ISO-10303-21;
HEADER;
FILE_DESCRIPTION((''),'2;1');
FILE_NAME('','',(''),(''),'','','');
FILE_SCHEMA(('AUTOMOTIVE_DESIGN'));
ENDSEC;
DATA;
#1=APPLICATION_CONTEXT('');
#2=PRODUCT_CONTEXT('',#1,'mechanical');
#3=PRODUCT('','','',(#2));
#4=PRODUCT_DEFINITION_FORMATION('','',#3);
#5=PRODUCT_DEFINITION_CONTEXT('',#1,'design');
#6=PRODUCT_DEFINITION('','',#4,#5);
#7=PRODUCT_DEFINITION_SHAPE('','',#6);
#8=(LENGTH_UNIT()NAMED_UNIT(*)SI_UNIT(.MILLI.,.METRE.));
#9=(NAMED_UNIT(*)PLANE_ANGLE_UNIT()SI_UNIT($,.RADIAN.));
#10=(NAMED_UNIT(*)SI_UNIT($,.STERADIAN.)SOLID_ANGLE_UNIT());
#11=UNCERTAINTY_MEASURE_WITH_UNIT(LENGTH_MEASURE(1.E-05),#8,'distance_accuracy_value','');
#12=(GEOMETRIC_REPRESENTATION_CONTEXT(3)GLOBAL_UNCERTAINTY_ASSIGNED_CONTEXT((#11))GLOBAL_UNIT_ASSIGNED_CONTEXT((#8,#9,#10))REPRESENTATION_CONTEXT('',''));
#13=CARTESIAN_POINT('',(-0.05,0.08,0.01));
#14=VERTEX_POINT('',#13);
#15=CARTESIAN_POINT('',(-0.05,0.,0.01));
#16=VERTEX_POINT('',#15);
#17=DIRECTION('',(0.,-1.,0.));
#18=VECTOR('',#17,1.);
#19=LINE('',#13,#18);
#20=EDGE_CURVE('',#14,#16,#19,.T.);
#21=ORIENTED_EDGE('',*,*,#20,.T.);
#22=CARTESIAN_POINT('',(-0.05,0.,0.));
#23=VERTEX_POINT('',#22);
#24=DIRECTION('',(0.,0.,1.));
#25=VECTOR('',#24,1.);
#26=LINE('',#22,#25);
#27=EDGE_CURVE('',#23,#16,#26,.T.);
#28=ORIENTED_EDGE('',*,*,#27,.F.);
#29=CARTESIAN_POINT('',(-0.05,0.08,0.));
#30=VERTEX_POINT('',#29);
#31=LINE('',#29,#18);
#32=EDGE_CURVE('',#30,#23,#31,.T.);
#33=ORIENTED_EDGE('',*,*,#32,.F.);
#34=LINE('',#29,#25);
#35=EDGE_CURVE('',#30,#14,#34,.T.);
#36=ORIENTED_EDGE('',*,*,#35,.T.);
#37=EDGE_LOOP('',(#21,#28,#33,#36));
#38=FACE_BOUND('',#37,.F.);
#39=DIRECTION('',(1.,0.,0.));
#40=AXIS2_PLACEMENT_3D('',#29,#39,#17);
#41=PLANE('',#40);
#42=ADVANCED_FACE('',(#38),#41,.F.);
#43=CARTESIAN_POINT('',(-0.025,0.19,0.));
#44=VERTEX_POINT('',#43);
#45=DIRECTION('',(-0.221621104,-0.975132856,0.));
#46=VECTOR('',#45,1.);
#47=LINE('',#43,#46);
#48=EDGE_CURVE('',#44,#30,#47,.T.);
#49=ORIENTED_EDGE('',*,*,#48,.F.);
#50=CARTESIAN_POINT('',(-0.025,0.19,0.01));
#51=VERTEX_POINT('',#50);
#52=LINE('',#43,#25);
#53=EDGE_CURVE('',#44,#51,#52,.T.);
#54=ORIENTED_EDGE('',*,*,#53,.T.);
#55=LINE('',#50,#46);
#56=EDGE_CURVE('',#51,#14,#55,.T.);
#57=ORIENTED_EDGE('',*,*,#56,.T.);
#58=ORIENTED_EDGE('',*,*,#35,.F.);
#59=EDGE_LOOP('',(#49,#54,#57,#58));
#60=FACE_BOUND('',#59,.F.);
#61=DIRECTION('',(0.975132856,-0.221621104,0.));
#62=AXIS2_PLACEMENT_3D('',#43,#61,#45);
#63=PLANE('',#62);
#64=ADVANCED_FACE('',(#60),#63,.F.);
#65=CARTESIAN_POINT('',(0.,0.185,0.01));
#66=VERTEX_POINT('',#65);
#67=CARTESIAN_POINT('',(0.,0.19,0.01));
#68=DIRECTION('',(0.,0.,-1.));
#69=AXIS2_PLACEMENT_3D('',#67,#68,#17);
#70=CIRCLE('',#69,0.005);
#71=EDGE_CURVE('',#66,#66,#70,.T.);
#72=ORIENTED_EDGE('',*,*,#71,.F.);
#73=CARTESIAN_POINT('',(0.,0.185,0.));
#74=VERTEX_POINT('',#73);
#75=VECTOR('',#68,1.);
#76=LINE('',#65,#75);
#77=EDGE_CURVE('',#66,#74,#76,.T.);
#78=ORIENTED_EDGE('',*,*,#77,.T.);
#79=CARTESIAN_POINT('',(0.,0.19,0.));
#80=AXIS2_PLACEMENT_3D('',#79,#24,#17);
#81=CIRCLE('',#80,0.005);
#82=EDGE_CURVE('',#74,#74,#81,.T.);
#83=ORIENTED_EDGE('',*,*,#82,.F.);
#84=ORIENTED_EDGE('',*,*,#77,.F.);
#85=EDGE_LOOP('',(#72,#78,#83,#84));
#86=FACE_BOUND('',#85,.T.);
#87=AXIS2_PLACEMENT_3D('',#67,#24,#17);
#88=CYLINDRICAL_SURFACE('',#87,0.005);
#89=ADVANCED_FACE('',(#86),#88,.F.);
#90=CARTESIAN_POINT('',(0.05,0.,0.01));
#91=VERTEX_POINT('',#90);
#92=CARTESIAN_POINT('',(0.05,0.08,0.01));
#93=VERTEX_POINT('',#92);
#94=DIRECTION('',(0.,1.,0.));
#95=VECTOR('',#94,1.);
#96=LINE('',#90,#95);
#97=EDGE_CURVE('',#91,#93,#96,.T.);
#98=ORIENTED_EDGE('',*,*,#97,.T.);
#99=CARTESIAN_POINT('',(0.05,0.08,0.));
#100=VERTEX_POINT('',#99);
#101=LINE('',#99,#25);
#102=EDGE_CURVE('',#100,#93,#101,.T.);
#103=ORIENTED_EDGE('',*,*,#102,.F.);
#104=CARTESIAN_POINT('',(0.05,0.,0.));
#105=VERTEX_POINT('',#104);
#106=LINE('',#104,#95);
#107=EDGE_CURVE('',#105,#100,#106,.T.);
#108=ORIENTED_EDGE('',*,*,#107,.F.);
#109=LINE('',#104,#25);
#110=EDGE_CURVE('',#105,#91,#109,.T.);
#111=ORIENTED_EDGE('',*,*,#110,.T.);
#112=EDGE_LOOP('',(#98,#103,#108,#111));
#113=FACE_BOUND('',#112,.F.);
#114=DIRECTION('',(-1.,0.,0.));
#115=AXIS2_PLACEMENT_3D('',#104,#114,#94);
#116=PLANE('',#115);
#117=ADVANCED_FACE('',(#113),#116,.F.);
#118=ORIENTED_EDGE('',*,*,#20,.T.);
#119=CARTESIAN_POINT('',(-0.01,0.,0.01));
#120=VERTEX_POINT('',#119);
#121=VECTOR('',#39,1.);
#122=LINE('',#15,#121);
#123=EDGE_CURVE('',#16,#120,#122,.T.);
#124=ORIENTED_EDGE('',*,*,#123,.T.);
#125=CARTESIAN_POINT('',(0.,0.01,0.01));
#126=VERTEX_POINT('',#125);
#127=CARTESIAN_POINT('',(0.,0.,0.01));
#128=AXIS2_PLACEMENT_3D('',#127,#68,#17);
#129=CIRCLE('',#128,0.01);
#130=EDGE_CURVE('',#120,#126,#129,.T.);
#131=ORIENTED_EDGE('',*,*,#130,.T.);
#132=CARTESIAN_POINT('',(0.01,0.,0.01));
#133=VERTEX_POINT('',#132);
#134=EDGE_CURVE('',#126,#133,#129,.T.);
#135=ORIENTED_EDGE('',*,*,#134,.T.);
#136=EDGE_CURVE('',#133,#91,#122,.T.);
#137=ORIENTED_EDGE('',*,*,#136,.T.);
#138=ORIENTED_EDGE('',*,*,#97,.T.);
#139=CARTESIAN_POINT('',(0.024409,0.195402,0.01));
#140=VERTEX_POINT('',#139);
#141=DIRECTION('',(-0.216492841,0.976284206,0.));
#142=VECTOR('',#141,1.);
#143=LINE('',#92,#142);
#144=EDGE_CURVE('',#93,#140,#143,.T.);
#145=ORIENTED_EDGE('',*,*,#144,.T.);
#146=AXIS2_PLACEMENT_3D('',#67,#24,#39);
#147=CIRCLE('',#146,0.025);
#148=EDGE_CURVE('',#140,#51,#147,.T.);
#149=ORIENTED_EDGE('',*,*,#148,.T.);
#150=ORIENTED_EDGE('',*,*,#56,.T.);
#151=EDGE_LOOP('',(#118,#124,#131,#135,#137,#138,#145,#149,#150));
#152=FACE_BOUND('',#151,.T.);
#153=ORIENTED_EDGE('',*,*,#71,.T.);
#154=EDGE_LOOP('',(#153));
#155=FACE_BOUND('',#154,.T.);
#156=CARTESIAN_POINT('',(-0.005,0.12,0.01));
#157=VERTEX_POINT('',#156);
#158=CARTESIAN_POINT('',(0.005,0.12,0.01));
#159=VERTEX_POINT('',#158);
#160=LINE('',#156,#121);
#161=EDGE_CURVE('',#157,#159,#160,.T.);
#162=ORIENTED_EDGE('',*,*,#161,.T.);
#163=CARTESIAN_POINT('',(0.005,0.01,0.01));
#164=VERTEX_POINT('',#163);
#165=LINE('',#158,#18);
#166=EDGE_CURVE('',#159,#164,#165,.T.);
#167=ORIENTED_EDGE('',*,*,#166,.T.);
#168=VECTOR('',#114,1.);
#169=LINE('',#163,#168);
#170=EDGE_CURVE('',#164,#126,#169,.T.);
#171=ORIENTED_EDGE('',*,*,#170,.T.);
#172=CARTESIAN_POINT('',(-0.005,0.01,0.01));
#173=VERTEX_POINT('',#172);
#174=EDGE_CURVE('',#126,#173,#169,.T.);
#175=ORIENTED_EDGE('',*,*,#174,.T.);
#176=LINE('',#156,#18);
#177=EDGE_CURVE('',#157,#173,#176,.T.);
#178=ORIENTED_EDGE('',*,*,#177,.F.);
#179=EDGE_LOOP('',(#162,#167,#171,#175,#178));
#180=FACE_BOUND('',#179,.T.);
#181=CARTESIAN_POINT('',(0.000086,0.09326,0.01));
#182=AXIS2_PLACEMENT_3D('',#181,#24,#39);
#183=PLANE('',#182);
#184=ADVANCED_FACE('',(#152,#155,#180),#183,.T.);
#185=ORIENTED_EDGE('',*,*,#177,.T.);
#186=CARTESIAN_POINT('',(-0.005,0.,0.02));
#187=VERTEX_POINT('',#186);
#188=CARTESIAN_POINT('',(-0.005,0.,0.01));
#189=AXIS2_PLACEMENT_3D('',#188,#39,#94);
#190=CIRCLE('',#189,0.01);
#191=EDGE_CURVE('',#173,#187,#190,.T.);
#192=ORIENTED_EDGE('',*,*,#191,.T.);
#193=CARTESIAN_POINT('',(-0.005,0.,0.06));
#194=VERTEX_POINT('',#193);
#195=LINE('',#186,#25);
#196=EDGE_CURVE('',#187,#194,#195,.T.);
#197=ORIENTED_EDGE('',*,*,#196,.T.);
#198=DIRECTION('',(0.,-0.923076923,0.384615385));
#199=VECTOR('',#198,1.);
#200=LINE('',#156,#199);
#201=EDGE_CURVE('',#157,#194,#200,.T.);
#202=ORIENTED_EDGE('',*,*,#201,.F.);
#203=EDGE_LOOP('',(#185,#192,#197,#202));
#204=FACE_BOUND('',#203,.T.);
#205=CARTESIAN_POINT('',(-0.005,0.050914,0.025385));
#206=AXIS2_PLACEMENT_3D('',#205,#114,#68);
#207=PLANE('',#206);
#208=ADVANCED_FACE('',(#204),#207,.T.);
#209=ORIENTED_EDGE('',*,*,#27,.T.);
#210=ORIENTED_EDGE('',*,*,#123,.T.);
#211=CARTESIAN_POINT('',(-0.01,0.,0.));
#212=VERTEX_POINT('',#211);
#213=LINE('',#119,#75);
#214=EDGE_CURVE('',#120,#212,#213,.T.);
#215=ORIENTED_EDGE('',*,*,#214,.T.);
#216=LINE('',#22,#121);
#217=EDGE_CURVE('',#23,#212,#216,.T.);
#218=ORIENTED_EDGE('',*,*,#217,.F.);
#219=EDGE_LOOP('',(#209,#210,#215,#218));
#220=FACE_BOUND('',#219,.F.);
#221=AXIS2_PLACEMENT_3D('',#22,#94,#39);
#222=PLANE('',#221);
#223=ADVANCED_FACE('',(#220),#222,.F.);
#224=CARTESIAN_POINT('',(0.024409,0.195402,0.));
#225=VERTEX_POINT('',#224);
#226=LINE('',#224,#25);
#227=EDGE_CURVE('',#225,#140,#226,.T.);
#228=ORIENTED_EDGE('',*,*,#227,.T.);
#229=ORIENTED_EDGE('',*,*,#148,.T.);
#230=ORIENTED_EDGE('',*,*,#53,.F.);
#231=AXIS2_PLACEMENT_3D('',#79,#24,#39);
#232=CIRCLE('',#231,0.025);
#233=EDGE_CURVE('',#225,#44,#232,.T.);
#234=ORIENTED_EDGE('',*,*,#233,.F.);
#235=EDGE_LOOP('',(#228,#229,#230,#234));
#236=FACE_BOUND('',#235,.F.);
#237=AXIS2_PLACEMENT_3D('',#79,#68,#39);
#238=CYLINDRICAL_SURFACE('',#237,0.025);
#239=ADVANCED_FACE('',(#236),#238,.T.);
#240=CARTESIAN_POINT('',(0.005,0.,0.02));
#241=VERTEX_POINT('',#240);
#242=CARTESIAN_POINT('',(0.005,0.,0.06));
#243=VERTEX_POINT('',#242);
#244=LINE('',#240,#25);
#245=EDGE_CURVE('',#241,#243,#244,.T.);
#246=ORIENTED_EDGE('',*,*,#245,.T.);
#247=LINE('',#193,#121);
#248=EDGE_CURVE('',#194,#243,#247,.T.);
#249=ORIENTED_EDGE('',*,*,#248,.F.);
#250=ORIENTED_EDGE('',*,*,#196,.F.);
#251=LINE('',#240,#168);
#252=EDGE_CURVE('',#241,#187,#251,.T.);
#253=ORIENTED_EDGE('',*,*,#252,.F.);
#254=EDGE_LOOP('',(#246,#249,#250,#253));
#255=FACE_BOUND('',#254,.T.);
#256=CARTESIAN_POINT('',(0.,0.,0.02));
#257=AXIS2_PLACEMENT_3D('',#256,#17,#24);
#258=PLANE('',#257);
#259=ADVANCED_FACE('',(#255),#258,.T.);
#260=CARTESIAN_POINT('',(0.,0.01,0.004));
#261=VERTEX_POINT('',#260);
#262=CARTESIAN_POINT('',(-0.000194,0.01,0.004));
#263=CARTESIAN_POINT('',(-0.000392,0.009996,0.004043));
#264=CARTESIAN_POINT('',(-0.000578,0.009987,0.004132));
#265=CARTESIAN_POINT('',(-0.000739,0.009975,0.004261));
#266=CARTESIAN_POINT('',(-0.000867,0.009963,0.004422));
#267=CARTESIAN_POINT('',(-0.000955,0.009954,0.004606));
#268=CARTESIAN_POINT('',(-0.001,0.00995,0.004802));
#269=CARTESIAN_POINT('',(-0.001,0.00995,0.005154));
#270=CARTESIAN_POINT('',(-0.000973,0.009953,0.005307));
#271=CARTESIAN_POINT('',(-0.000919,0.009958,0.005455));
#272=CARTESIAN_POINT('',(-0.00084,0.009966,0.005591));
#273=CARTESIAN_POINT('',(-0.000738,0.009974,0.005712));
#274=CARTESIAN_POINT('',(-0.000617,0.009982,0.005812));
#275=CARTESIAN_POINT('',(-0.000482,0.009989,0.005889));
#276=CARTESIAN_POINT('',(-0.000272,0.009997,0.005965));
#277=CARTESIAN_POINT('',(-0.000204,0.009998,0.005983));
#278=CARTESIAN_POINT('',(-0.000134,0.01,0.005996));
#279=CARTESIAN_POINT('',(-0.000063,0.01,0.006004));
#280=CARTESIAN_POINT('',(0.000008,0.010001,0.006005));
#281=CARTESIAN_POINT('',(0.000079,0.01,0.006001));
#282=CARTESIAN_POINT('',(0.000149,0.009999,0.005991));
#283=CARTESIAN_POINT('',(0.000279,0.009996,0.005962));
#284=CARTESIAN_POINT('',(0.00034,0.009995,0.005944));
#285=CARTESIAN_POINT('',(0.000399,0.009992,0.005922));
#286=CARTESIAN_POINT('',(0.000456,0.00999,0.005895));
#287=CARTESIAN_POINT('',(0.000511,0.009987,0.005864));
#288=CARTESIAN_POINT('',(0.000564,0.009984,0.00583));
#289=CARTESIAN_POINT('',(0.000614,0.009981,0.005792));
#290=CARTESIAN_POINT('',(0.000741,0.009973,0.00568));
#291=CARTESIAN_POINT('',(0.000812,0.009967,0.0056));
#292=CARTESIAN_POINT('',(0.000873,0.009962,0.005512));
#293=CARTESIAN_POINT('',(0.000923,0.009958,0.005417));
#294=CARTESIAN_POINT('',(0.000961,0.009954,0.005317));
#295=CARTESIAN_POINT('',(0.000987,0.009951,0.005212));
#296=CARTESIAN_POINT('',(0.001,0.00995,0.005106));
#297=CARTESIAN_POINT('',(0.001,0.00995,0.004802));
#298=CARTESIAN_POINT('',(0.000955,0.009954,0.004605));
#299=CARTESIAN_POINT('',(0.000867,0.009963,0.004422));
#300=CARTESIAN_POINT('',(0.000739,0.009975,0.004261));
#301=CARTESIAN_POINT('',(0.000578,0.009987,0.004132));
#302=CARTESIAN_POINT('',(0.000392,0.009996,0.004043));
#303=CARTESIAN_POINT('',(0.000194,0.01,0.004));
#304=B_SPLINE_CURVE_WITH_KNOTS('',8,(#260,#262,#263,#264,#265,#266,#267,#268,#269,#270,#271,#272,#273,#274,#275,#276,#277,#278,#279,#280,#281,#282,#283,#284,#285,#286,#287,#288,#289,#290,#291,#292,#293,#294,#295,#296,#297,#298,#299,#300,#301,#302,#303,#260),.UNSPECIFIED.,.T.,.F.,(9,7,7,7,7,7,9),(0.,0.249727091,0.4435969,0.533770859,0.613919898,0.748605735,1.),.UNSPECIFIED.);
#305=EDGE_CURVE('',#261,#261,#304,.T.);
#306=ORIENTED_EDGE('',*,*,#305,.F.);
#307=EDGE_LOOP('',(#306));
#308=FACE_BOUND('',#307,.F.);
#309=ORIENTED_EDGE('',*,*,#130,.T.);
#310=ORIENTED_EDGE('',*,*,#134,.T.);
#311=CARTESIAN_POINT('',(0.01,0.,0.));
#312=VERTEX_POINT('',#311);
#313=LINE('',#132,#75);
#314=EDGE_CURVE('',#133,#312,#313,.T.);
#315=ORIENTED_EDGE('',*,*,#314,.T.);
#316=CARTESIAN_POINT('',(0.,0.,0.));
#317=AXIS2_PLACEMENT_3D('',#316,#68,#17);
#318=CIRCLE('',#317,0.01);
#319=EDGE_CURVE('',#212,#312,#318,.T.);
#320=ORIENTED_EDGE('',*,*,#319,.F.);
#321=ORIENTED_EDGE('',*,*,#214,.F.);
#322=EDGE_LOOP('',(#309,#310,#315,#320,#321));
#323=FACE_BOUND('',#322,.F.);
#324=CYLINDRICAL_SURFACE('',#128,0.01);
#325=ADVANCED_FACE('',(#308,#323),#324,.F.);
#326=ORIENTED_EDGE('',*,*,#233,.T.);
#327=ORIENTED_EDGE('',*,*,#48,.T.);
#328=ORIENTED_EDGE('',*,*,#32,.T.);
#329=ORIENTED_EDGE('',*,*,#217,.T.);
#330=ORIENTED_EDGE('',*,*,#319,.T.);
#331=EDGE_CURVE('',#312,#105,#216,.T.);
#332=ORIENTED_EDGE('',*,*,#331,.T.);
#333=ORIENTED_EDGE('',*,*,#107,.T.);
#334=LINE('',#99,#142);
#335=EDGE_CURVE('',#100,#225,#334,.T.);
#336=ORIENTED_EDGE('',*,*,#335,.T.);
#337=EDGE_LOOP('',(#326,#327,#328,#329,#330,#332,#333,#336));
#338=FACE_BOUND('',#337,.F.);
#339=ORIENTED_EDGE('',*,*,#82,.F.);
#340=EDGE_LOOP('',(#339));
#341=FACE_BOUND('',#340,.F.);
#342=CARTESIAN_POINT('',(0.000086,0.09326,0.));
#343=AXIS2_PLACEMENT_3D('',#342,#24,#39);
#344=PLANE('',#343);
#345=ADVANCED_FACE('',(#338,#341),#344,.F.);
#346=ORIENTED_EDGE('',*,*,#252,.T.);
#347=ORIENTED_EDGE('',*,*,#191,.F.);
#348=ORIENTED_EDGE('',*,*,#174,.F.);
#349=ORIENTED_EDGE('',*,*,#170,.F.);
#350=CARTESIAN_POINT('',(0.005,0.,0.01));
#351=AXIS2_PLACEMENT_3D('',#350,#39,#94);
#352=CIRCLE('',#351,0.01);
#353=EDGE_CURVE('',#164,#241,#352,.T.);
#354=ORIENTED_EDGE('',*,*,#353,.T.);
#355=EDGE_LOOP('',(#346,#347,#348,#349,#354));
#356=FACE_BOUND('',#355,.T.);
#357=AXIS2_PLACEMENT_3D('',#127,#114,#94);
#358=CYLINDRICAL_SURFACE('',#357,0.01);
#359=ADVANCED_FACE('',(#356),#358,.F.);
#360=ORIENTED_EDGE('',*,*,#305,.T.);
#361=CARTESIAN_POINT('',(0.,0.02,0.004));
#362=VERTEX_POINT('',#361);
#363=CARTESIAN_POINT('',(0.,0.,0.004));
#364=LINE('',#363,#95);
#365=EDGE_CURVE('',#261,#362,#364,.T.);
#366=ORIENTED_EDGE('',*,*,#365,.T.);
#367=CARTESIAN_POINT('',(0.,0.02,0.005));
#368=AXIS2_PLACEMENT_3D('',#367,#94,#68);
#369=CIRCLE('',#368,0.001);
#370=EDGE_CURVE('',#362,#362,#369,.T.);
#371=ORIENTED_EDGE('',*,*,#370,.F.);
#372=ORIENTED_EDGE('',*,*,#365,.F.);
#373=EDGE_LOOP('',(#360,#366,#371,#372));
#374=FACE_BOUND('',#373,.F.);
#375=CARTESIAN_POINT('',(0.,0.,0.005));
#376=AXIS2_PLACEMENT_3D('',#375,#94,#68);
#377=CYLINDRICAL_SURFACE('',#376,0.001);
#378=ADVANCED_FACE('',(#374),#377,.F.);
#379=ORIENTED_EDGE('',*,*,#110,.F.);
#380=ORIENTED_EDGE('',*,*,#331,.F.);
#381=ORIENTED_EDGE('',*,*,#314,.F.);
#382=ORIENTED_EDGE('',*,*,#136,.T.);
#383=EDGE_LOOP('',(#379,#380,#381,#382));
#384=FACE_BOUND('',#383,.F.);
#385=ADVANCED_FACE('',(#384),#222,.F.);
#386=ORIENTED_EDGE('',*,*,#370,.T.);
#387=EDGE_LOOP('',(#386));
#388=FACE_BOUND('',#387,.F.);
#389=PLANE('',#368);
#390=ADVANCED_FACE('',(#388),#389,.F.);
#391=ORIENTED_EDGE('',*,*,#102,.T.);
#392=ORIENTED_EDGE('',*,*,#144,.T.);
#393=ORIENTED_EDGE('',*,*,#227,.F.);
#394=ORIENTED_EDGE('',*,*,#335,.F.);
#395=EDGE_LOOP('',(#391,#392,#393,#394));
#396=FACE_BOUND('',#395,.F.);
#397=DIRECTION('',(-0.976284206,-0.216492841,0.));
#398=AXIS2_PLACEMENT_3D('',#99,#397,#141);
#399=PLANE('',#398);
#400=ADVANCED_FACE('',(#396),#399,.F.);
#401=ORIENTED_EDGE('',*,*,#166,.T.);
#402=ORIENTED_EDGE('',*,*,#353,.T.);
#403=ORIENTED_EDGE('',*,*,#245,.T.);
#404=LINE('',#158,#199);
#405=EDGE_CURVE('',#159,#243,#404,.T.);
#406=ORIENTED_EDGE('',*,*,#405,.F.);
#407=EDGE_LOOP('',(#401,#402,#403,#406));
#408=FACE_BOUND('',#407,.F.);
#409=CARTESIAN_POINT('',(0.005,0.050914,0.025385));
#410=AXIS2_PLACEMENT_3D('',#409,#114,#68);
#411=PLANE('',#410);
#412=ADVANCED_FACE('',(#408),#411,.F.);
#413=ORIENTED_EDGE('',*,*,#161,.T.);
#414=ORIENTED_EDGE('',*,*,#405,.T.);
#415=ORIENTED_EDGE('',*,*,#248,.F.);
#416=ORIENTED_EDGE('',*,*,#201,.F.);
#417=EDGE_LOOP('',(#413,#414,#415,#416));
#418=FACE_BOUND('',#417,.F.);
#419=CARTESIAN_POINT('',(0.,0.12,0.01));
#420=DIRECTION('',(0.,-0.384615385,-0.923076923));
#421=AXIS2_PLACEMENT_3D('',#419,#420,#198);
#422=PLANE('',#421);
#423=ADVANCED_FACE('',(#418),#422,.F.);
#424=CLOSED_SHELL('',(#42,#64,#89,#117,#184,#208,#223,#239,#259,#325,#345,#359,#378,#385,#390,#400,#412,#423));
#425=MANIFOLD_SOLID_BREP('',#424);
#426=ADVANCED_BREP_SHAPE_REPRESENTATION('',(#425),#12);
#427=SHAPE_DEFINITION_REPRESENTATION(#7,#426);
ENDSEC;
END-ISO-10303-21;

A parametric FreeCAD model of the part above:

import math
import FreeCAD as App
import Part
import Sketcher

doc = App.newDocument("Part")
body = doc.addObject("PartDesign::Body", "Body")

sketch1 = doc.addObject("Sketcher::SketchObject", "Sketch")
body.addObject(sketch1)
sketch1.AttachmentSupport = (doc.XY_Plane, [""])
sketch1.MapMode = "FlatFace"
sketch1.addGeometry(Part.LineSegment(App.Vector(-0.05, 0.08, 0), App.Vector(-0.05, 0, 0)), False)
sketch1.addGeometry(Part.LineSegment(App.Vector(-0.05, 0, 0), App.Vector(0.05, 0, 0)), False)
sketch1.addGeometry(Part.LineSegment(App.Vector(0.05, 0, 0), App.Vector(0.05, 0.08, 0)), False)
sketch1.addGeometry(Part.LineSegment(App.Vector(0.05, 0.08, 0), App.Vector(0.024, 0.195, 0)), False)
sketch1.addGeometry(Part.ArcOfCircle(Part.Circle(App.Vector(0, 0.19, 0), App.Vector(0, 0, 1), 0.025), math.radians(12), math.radians(180)), False)
sketch1.addGeometry(Part.LineSegment(App.Vector(-0.025, 0.19, 0), App.Vector(-0.05, 0.08, 0)), False)
sketch1.addConstraint(Sketcher.Constraint("Coincident", 0, 2, 1, 1))
sketch1.addConstraint(Sketcher.Constraint("Coincident", 1, 2, 2, 1))
sketch1.addConstraint(Sketcher.Constraint("Coincident", 2, 2, 3, 1))
sketch1.addConstraint(Sketcher.Constraint("Coincident", 3, 2, 4, 1))
sketch1.addConstraint(Sketcher.Constraint("Coincident", 4, 2, 5, 1))
sketch1.addConstraint(Sketcher.Constraint("Coincident", 5, 2, 0, 1))
sketch1.addConstraint(Sketcher.Constraint("Vertical", 0))
sketch1.addConstraint(Sketcher.Constraint("Horizontal", 1))
sketch1.addConstraint(Sketcher.Constraint("Vertical", 2))
sketch1.addConstraint(Sketcher.Constraint("Symmetric", 0, 2, 1, 2, -1, 1))
sketch1.addConstraint(Sketcher.Constraint("PointOnObject", 4, 3, -2))
sketch1.addConstraint(Sketcher.Constraint("Horizontal", 2, 2, 5, 2))
sketch1.addConstraint(Sketcher.Constraint("Radius", 4, 0.025))
sketch1.addConstraint(Sketcher.Constraint("DistanceX", 0, 2, -1, 1, 0.05))
sketch1.addConstraint(Sketcher.Constraint("DistanceY", 0, 2, 0, 1, 0.08))
sketch1.addConstraint(Sketcher.Constraint("DistanceY", -1, 1, 4, 3, 0.19))
sketch1.addConstraint(Sketcher.Constraint("DistanceY", -1, 1, 4, 2, 0.19))
sketch1.addConstraint(Sketcher.Constraint("Distance", 3, 0.1182))
pad1 = doc.addObject("PartDesign::Pad", "Pad")
body.addObject(pad1)
pad1.Profile = sketch1
pad1.Length = 0.01

sketch2 = doc.addObject("Sketcher::SketchObject", "Sketch001")
body.addObject(sketch2)
sketch2.AttachmentSupport = (doc.XZ_Plane, [""])
sketch2.MapMode = "FlatFace"
sketch2.addGeometry(Part.Circle(App.Vector(0, 0.005, 0), App.Vector(0, 0, 1), 0.001), False)
sketch2.addConstraint(Sketcher.Constraint("PointOnObject", 0, 3, -2))
sketch2.addConstraint(Sketcher.Constraint("Diameter", 0, 0.002))
sketch2.addConstraint(Sketcher.Constraint("DistanceY", -1, 1, 0, 3, 0.005))
doc.recompute()
hole = doc.addObject("PartDesign::Hole", "Hole")
body.addObject(hole)
hole.Profile = sketch2
hole.ThreadType = "None"
hole.Diameter = 0.002
hole.DepthType = "Dimension"
hole.Depth = 0.02
hole.DrillPoint = "Flat"

sketch3 = doc.addObject("Sketcher::SketchObject", "Sketch002")
body.addObject(sketch3)
sketch3.AttachmentSupport = (doc.XY_Plane, [""])
sketch3.MapMode = "FlatFace"
sketch3.AttachmentOffset = App.Placement(App.Vector(0, 0, 0.01), App.Rotation())
sketch3.addGeometry(Part.Circle(App.Vector(0, 0.19, 0), App.Vector(0, 0, 1), 0.005), False)
sketch3.addConstraint(Sketcher.Constraint("PointOnObject", 0, 3, -2))
sketch3.addConstraint(Sketcher.Constraint("Diameter", 0, 0.01))
sketch3.addConstraint(Sketcher.Constraint("DistanceY", -1, 1, 0, 3, 0.19))
doc.recompute()
hole2 = doc.addObject("PartDesign::Hole", "Hole001")
body.addObject(hole2)
hole2.Profile = sketch3
hole2.ThreadType = "None"
hole2.Diameter = 0.01
hole2.DepthType = "ThroughAll"

sketch4 = doc.addObject("Sketcher::SketchObject", "Sketch003")
body.addObject(sketch4)
sketch4.AttachmentSupport = (doc.XY_Plane, [""])
sketch4.MapMode = "FlatFace"
sketch4.AttachmentOffset = App.Placement(App.Vector(0, 0, 0.01), App.Rotation())
sketch4.addGeometry(Part.Circle(App.Vector(0, 0, 0), App.Vector(0, 0, 1), 0.01), False)
sketch4.addConstraint(Sketcher.Constraint("Coincident", 0, 3, -1, 1))
sketch4.addConstraint(Sketcher.Constraint("Diameter", 0, 0.02))
doc.recompute()
hole3 = doc.addObject("PartDesign::Hole", "Hole002")
body.addObject(hole3)
hole3.Profile = sketch4
hole3.ThreadType = "None"
hole3.Diameter = 0.02
hole3.DepthType = "Dimension"
hole3.Depth = 3.175
hole3.DrillPoint = "Flat"

sketch5 = doc.addObject("Sketcher::SketchObject", "Sketch004")
body.addObject(sketch5)
sketch5.AttachmentSupport = (doc.YZ_Plane, [""])
sketch5.MapMode = "FlatFace"
sketch5.addGeometry(Part.LineSegment(App.Vector(0.01, 0.01, 0), App.Vector(0.12, 0.01, 0)), False)
sketch5.addGeometry(Part.LineSegment(App.Vector(0.12, 0.01, 0), App.Vector(0, 0.06, 0)), False)
sketch5.addGeometry(Part.LineSegment(App.Vector(0, 0.06, 0), App.Vector(0, 0.02, 0)), False)
sketch5.addGeometry(Part.ArcOfCircle(Part.Circle(App.Vector(0, 0.01, 0), App.Vector(0, 0, 1), 0.01), math.radians(0), math.radians(90)), False)
sketch5.addConstraint(Sketcher.Constraint("Coincident", 0, 2, 1, 1))
sketch5.addConstraint(Sketcher.Constraint("Coincident", 1, 2, 2, 1))
sketch5.addConstraint(Sketcher.Constraint("Coincident", 2, 2, 3, 2))
sketch5.addConstraint(Sketcher.Constraint("Coincident", 3, 1, 0, 1))
sketch5.addConstraint(Sketcher.Constraint("Horizontal", 0))
sketch5.addConstraint(Sketcher.Constraint("Vertical", 2))
sketch5.addConstraint(Sketcher.Constraint("PointOnObject", 3, 3, -2))
sketch5.addConstraint(Sketcher.Constraint("PointOnObject", 1, 2, -2))
sketch5.addConstraint(Sketcher.Constraint("Horizontal", 3, 3, 0, 2))
sketch5.addConstraint(Sketcher.Constraint("Radius", 3, 0.01))
sketch5.addConstraint(Sketcher.Constraint("DistanceX", 0, 1, 0, 2, 0.11))
sketch5.addConstraint(Sketcher.Constraint("DistanceY", 2, 2, 2, 1, 0.04))
sketch5.addConstraint(Sketcher.Constraint("DistanceY", -1, 1, 3, 3, 0.01))
pad2 = doc.addObject("PartDesign::Pad", "Pad001")
body.addObject(pad2)
pad2.Profile = sketch5
pad2.Length = 0.01
pad2.Midplane = True

doc.recompute()
